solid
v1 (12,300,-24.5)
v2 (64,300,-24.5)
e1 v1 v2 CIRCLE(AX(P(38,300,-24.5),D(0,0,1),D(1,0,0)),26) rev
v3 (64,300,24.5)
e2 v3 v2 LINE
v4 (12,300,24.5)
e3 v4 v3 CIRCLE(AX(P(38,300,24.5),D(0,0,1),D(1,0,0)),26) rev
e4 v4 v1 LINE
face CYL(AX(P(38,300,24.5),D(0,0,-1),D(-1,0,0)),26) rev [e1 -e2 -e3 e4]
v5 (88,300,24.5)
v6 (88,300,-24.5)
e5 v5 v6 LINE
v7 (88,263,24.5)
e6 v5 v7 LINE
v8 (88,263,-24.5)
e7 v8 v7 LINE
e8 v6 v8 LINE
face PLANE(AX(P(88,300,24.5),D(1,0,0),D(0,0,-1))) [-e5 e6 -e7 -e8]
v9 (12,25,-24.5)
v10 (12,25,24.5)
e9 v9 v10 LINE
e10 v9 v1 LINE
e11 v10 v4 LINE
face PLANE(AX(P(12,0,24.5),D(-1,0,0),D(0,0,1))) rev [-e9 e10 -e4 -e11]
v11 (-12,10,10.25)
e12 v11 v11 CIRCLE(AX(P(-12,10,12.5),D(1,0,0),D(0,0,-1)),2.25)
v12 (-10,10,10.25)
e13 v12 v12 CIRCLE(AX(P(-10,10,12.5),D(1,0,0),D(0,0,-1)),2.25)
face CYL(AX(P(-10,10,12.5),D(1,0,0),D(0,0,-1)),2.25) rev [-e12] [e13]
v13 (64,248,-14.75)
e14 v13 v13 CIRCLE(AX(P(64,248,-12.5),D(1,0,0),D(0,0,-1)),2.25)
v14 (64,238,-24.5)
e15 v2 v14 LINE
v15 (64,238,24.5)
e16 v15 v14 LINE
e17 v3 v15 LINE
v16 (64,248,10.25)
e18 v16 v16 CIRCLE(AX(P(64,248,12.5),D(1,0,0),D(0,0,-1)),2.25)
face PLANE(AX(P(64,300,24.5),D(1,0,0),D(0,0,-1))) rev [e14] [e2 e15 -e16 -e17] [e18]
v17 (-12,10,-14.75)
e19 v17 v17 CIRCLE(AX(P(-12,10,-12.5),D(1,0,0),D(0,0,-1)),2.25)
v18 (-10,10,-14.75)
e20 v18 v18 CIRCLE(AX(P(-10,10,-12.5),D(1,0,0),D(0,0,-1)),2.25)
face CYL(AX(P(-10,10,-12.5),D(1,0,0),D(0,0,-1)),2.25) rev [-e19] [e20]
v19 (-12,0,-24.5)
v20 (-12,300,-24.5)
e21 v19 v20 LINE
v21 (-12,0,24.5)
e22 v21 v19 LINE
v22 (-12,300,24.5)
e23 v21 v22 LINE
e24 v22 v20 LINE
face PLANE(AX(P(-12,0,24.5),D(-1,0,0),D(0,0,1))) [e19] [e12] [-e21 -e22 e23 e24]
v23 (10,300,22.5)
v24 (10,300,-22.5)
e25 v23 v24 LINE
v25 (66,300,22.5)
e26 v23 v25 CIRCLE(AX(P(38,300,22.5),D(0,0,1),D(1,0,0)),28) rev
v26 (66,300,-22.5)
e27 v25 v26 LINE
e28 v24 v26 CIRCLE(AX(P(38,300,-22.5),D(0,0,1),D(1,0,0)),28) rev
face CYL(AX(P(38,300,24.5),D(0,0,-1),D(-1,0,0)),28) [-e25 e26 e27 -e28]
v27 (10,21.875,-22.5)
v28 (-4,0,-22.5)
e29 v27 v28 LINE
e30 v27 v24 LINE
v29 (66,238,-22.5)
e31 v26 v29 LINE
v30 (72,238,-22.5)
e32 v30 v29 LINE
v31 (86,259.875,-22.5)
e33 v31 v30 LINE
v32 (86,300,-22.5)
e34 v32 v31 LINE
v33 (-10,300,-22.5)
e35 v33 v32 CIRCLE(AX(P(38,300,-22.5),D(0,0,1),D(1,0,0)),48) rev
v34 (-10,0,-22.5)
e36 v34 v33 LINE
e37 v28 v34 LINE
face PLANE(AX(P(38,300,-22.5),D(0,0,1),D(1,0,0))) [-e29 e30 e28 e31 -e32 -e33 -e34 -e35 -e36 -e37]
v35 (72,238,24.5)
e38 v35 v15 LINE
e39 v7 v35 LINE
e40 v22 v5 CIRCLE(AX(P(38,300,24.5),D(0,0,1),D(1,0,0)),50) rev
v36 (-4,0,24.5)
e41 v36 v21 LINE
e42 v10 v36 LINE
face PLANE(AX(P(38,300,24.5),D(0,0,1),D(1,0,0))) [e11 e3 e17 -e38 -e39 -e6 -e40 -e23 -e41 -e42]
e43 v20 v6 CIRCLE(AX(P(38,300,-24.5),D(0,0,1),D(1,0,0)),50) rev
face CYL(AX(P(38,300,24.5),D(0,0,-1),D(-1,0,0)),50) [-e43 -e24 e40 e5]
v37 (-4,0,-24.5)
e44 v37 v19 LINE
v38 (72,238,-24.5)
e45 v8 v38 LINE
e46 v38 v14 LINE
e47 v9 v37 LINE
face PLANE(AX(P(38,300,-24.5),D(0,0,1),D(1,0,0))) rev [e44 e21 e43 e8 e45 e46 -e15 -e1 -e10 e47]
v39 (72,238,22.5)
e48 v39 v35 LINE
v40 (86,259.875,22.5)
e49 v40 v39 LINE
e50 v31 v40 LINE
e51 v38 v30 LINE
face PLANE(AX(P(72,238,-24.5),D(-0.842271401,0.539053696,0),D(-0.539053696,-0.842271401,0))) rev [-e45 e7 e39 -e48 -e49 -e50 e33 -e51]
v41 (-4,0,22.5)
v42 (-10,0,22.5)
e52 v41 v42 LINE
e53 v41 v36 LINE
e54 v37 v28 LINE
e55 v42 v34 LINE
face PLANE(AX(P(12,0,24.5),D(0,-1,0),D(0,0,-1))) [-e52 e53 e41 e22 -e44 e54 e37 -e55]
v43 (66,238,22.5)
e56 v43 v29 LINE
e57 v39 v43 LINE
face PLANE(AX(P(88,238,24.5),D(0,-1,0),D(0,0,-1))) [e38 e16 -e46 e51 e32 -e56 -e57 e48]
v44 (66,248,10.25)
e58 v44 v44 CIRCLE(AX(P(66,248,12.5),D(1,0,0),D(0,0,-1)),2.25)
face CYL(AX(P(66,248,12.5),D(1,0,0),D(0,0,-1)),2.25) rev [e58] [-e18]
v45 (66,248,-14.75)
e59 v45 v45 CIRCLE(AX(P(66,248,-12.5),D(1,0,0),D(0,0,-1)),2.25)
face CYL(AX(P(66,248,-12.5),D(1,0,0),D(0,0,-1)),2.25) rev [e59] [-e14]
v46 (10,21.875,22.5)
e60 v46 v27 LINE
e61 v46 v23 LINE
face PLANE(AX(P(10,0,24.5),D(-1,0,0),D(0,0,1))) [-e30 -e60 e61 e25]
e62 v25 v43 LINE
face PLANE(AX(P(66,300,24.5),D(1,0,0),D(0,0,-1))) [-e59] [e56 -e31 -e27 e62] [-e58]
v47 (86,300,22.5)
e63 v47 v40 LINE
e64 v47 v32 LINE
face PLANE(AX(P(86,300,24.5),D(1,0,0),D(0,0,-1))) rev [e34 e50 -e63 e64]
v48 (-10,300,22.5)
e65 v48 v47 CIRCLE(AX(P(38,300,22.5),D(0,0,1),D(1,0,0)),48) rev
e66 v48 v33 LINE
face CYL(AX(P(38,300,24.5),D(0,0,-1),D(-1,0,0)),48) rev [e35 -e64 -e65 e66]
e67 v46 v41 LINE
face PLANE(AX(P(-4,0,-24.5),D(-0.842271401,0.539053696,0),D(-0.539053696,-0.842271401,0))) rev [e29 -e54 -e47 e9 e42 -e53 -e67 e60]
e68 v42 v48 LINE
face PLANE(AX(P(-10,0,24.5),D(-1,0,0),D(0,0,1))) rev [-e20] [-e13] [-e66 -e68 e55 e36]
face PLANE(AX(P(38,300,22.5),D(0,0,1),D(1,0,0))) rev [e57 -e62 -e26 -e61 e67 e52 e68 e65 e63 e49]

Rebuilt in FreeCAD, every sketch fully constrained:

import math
import FreeCAD as App
import Part
import Sketcher

V = App.Vector


def faces_at(feature, points):
    """Names of the faces that lie closest to the given points."""
    faces = feature.Shape.Faces
    near = lambda p: min(range(len(faces)), key=lambda i: faces[i].distToShape(Part.Vertex(*p))[0])
    return sorted({f"Face{near(p) + 1}" for p in points})


def add_polygon(sketch, points):
    """Adds a closed chain of lines whose ends are joined by coincident constraints."""
    first, n = sketch.GeometryCount, len(points)
    for a, b in zip(points, points[1:] + points[:1]):
        sketch.addGeometry(Part.LineSegment(App.Vector(*a, 0), App.Vector(*b, 0)), False)
    for i in range(n):
        sketch.addConstraint(Sketcher.Constraint("Coincident", first + i, 2, first + (i + 1) % n, 1))

doc = App.newDocument("Part")
body = doc.addObject("PartDesign::Body", "Body")

# Sketch on XY plane
sketch1 = body.newObject("Sketcher::SketchObject", "Sketch")
sketch1.AttachmentSupport = (doc.getObject("XY_Plane"), [""])
sketch1.MapMode = "FlatFace"
sketch1.addGeometry([
    Part.LineSegment(V(12, 0, 0), V(12, 300, 0)),  # 0
    Part.ArcOfCircle(Part.Circle(V(38, 300, 0), V(0, 0, 1), 26), math.radians(0), math.radians(180)),  # 1
    Part.LineSegment(V(64, 300, 0), V(64, 238, 0)),  # 2
    Part.LineSegment(V(64, 238, 0), V(88, 238, 0)),  # 3
    Part.LineSegment(V(88, 238, 0), V(88, 300, 0)),  # 4
    Part.ArcOfCircle(Part.Circle(V(38, 300, 0), V(0, 0, 1), 50), math.radians(0), math.radians(180)),  # 5
    Part.LineSegment(V(-12, 300, 0), V(-12, 0, 0)),  # 6
    Part.LineSegment(V(-12, 0, 0), V(12, 0, 0)),  # 7
], False)
sketch1.addConstraint([
    Sketcher.Constraint("Tangent", 0, 2, 1, 2),
    Sketcher.Constraint("Tangent", 1, 1, 2, 1),
    Sketcher.Constraint("Coincident", 2, 2, 3, 1),
    Sketcher.Constraint("Coincident", 3, 2, 4, 1),
    Sketcher.Constraint("Tangent", 4, 2, 5, 1),
    Sketcher.Constraint("Tangent", 5, 2, 6, 1),
    Sketcher.Constraint("Coincident", 6, 2, 7, 1),
    Sketcher.Constraint("Coincident", 7, 2, 0, 1),
    Sketcher.Constraint("Vertical", 0),
    Sketcher.Constraint("Vertical", 2),
    Sketcher.Constraint("Horizontal", 3),
    Sketcher.Constraint("Vertical", 4),
    Sketcher.Constraint("Vertical", 6),
    Sketcher.Constraint("Horizontal", 7),
    Sketcher.Constraint("Coincident", 5, 3, 1, 3),
    Sketcher.Constraint("Symmetric", 6, 2, 7, 2, -1, 1),
    Sketcher.Constraint("Radius", 1, 26.0),
    Sketcher.Constraint("Radius", 5, 50.0),
    Sketcher.Constraint("DistanceY", 0, 1, 0, 2, 300.0),
    Sketcher.Constraint("DistanceY", 2, 2, 2, 1, 62.0),
])
pad1 = body.newObject("PartDesign::Pad", "Pad")
pad1.Profile = sketch1
pad1.Length = 49
pad1.Midplane = True
doc.recompute()

thickness = body.newObject("PartDesign::Thickness", "Thickness")
thickness.Base = (pad1, faces_at(pad1, [(0, 0, 0), (76, 238, 0)]))
thickness.Value = 2
thickness.Reversed = True
thickness.Join = "Intersection"

# Sketch on XY plane
sketch2 = body.newObject("Sketcher::SketchObject", "Sketch001")
sketch2.AttachmentSupport = (doc.getObject("XY_Plane"), [""])
sketch2.MapMode = "FlatFace"
sketch2.AttachmentOffset = App.Placement(V(0, 0, 24.5), App.Rotation())
add_polygon(sketch2, [(88, 238), (88, 263), (72, 238)])  # lines 0-2
add_polygon(sketch2, [(12, 0), (12, 25), (-4, 0)])  # lines 3-5
sketch2.addConstraint([
    Sketcher.Constraint("Vertical", 0),
    Sketcher.Constraint("Horizontal", 2),
    Sketcher.Constraint("Vertical", 3),
    Sketcher.Constraint("Horizontal", 5),
    Sketcher.Constraint("PointOnObject", 4, 2, -1),
    Sketcher.Constraint("Parallel", 1, 4),
    Sketcher.Constraint("Equal", 2, 5),
    Sketcher.Constraint("DistanceX", 2, 1, 2, 2, 16.0),
    Sketcher.Constraint("DistanceY", 0, 1, 0, 2, 25.0),
    Sketcher.Constraint("DistanceX", -1, 1, 0, 2, 88.0),
    Sketcher.Constraint("DistanceY", -1, 1, 0, 2, 263.0),
    Sketcher.Constraint("DistanceX", -1, 1, 3, 2, 12.0),
])
pocket1 = body.newObject("PartDesign::Pocket", "Pocket")
pocket1.Profile = sketch2
pocket1.Type = "ThroughAll"

# Sketch on YZ plane
sketch3 = body.newObject("Sketcher::SketchObject", "Sketch002")
sketch3.AttachmentSupport = (doc.getObject("YZ_Plane"), [""])
sketch3.MapMode = "FlatFace"
sketch3.AttachmentOffset = App.Placement(V(0, 0, -10), App.Rotation())
sketch3.addGeometry([
    Part.Circle(V(10, -12.5, 0), V(0, 0, 1), 2.25),
    Part.Circle(V(10, 12.5, 0), V(0, 0, 1), 2.25),
], False)
sketch3.addConstraint([
    Sketcher.Constraint("Equal", 0, 1),
    Sketcher.Constraint("Symmetric", 0, 3, 1, 3, -1),
    Sketcher.Constraint("Diameter", 0, 4.5),
    Sketcher.Constraint("DistanceX", -1, 1, 0, 3, 10.0),
    Sketcher.Constraint("DistanceY", 0, 3, 1, 3, 25.0),
])
doc.recompute()
hole = body.newObject("PartDesign::Hole", "Hole")
hole.Profile = sketch3
hole.ThreadType = "None"
hole.Diameter = 4.5
hole.DepthType = "ThroughAll"

# Sketch on YZ plane
sketch4 = body.newObject("Sketcher::SketchObject", "Sketch003")
sketch4.AttachmentSupport = (doc.getObject("YZ_Plane"), [""])
sketch4.MapMode = "FlatFace"
sketch4.AttachmentOffset = App.Placement(V(0, 0, 66), App.Rotation())
sketch4.addGeometry([
    Part.Circle(V(248, -12.5, 0), V(0, 0, 1), 2.25),
    Part.Circle(V(248, 12.5, 0), V(0, 0, 1), 2.25),
], False)
sketch4.addConstraint([
    Sketcher.Constraint("Equal", 0, 1),
    Sketcher.Constraint("Symmetric", 0, 3, 1, 3, -1),
    Sketcher.Constraint("Diameter", 0, 4.5),
    Sketcher.Constraint("DistanceX", -1, 1, 0, 3, 248.0),
    Sketcher.Constraint("DistanceY", 0, 3, 1, 3, 25.0),
])
doc.recompute()
hole2 = body.newObject("PartDesign::Hole", "Hole001")
hole2.Profile = sketch4
hole2.ThreadType = "None"
hole2.Diameter = 4.5
hole2.DepthType = "Dimension"
hole2.Depth = 2
hole2.DrillPoint = "Flat"

doc.recompute()
